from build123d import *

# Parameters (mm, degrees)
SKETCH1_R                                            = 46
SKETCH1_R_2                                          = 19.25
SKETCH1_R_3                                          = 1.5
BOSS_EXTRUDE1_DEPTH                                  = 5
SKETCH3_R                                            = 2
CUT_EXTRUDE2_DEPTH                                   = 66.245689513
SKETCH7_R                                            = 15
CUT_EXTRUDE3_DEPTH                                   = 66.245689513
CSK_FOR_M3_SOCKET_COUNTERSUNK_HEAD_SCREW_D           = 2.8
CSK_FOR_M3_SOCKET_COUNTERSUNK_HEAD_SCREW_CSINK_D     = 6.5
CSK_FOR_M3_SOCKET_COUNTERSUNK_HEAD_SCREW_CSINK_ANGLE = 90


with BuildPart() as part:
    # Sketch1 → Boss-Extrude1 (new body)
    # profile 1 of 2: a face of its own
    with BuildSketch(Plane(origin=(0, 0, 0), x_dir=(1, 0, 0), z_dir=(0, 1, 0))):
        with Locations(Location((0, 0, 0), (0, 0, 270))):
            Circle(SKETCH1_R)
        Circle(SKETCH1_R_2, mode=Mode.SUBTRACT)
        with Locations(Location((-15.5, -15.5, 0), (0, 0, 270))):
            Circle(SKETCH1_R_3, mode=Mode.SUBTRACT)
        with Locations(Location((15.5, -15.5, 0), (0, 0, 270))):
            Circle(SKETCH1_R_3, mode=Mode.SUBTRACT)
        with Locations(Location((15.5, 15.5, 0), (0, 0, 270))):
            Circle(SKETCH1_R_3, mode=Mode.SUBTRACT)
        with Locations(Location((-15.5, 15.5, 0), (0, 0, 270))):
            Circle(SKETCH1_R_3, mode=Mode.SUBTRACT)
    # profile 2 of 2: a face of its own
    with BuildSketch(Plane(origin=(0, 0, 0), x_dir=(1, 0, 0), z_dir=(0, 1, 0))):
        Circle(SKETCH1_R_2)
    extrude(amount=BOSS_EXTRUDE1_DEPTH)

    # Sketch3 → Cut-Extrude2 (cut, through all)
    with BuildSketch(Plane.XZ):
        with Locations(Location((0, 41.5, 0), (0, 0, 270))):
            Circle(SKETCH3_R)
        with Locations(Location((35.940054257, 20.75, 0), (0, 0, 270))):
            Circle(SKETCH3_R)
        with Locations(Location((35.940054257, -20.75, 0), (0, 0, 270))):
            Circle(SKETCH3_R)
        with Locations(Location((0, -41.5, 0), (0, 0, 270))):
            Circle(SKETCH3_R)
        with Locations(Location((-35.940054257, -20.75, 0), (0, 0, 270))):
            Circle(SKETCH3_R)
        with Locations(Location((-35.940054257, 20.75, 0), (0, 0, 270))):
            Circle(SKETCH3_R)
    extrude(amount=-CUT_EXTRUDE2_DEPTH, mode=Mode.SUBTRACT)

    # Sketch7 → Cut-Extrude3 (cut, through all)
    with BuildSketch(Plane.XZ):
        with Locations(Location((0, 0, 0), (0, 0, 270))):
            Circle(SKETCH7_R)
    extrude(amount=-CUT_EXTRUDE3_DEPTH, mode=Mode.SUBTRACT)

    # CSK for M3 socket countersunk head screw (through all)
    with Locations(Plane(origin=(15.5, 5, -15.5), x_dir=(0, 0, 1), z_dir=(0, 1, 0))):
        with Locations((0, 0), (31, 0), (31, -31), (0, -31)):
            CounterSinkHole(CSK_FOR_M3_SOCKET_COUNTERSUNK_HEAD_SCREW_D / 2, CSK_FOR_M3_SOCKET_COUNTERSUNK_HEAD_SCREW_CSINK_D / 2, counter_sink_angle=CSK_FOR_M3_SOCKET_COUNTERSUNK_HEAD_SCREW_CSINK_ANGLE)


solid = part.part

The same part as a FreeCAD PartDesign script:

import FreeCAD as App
import Part
import Sketcher
from FreeCAD import Vector
Q = App.Units.Quantity

doc = App.newDocument("Part")
params = doc.addObject("Spreadsheet::Sheet", "Params")
for row, (alias, value) in enumerate([
    ("sketch1_diameter", "92 mm"),
    ("sketch1_diameter2", "3 mm"),
    ("pad1_length", "5 mm"),
    ("sketch2_diameter", "4 mm"),
    ("sketch3_diameter", "30 mm"),
    ("sketch4_diameter", "2.8 mm"),
    ("hole_diameter", "2.8 mm"),
    ("hole_csink_diameter", "6.5 mm"),
], start=1):
    params.set(f"A{row}", alias)
    params.set(f"B{row}", "=" + value)
    params.setAlias(f"B{row}", alias)

body = doc.addObject("PartDesign::Body", "Body")

# Sketch on XZ plane
sketch1 = doc.addObject("Sketcher::SketchObject", "Sketch")
body.addObject(sketch1)
sketch1.AttachmentSupport = (doc.XZ_Plane, [""])
sketch1.MapMode = "FlatFace"
sketch1.addGeometry([
    Part.Circle(Vector(0, 0, 0), Vector(0, 0, 1), 46),  # 0
    Part.Circle(Vector(-15.5, -15.5, 0), Vector(0, 0, 1), 1.5),  # 1
    Part.Circle(Vector(-15.5, 15.5, 0), Vector(0, 0, 1), 1.5),  # 2
    Part.Circle(Vector(15.5, -15.5, 0), Vector(0, 0, 1), 1.5),  # 3
    Part.Circle(Vector(15.5, 15.5, 0), Vector(0, 0, 1), 1.5),  # 4
], False)
sketch1.addConstraint([
    Sketcher.Constraint("Coincident", 0, 3, -1, 1),
    Sketcher.Constraint("Equal", 1, 2),
    Sketcher.Constraint("Equal", 2, 3),
    Sketcher.Constraint("Equal", 3, 4),
    Sketcher.Constraint("Symmetric", 2, 3, 3, 3, -1, 1),
    Sketcher.Constraint("Symmetric", 1, 3, 4, 3, -1, 1),
    Sketcher.Constraint("Symmetric", 1, 3, 3, 3, -2),
    Sketcher.Constraint("Diameter", 0, Q("92 mm")),
    Sketcher.Constraint("Diameter", 1, Q("3 mm")),
    Sketcher.Constraint("DistanceY", 1, 3, 2, 3, Q("31 mm")),
    Sketcher.Constraint("DistanceX", 1, 3, 3, 3, Q("31 mm")),
])
sketch1.setExpression("Constraints[7]", "Params.sketch1_diameter")
sketch1.setExpression("Constraints[8]", "Params.sketch1_diameter2")
pad1 = doc.addObject("PartDesign::Pad", "Pad")
body.addObject(pad1)
pad1.Profile = sketch1
pad1.setExpression("Length", "Params.pad1_length")
pad1.Reversed = True

# Sketch on XZ plane
sketch2 = doc.addObject("Sketcher::SketchObject", "Sketch001")
body.addObject(sketch2)
sketch2.AttachmentSupport = (doc.XZ_Plane, [""])
sketch2.MapMode = "FlatFace"
sketch2.addGeometry([
    Part.Circle(Vector(0, 41.5, 0), Vector(0, 0, 1), 2),  # 0
    Part.Circle(Vector(35.9, 20.8, 0), Vector(0, 0, 1), 2),  # 1
    Part.Circle(Vector(35.9, -20.8, 0), Vector(0, 0, 1), 2),  # 2
    Part.Circle(Vector(0, -41.5, 0), Vector(0, 0, 1), 2),  # 3
    Part.Circle(Vector(-35.9, -20.8, 0), Vector(0, 0, 1), 2),  # 4
    Part.Circle(Vector(-35.9, 20.8, 0), Vector(0, 0, 1), 2),  # 5
], False)
sketch2.addConstraint([
    Sketcher.Constraint("Equal", 0, 1),
    Sketcher.Constraint("Equal", 1, 2),
    Sketcher.Constraint("Equal", 2, 3),
    Sketcher.Constraint("Equal", 3, 4),
    Sketcher.Constraint("Equal", 4, 5),
    Sketcher.Constraint("Symmetric", 0, 3, 3, 3, -1, 1),
    Sketcher.Constraint("Symmetric", 1, 3, 4, 3, -1, 1),
    Sketcher.Constraint("Symmetric", 2, 3, 5, 3, -1, 1),
    Sketcher.Constraint("Symmetric", 2, 3, 4, 3, -2),
    Sketcher.Constraint("PointOnObject", 0, 3, -2),
    Sketcher.Constraint("Diameter", 0, Q("4 mm")),
    Sketcher.Constraint("DistanceY", 3, 3, 0, 3, Q("83 mm")),
    Sketcher.Constraint("DistanceY", 2, 3, 1, 3, Q("41.5 mm")),
    Sketcher.Constraint("DistanceX", 4, 3, 2, 3, Q("71.880109 mm")),
])
sketch2.setExpression("Constraints[10]", "Params.sketch2_diameter")
pocket1 = doc.addObject("PartDesign::Pocket", "Pocket")
body.addObject(pocket1)
pocket1.Profile = sketch2
pocket1.Type = "ThroughAll"

# Sketch on XZ plane
sketch3 = doc.addObject("Sketcher::SketchObject", "Sketch002")
body.addObject(sketch3)
sketch3.AttachmentSupport = (doc.XZ_Plane, [""])
sketch3.MapMode = "FlatFace"
sketch3.addGeometry(Part.Circle(Vector(0, 0, 0), Vector(0, 0, 1), 15), False)
sketch3.addConstraint([
    Sketcher.Constraint("Coincident", 0, 3, -1, 1),
    Sketcher.Constraint("Diameter", 0, Q("30 mm")),
])
sketch3.setExpression("Constraints[1]", "Params.sketch3_diameter")
pocket2 = doc.addObject("PartDesign::Pocket", "Pocket001")
body.addObject(pocket2)
pocket2.Profile = sketch3
pocket2.Type = "ThroughAll"

# Sketch on XZ plane
sketch4 = doc.addObject("Sketcher::SketchObject", "Sketch003")
body.addObject(sketch4)
sketch4.AttachmentSupport = (doc.XZ_Plane, [""])
sketch4.MapMode = "FlatFace"
sketch4.AttachmentOffset = App.Placement(Vector(0, 0, -5), App.Rotation())
sketch4.addGeometry([
    Part.Circle(Vector(15.5, -15.5, 0), Vector(0, 0, 1), 1.4),
    Part.Circle(Vector(15.5, 15.5, 0), Vector(0, 0, 1), 1.4),
    Part.Circle(Vector(-15.5, 15.5, 0), Vector(0, 0, 1), 1.4),
    Part.Circle(Vector(-15.5, -15.5, 0), Vector(0, 0, 1), 1.4),
], False)
sketch4.addConstraint([
    Sketcher.Constraint("Equal", 0, 1),
    Sketcher.Constraint("Equal", 1, 2),
    Sketcher.Constraint("Equal", 2, 3),
    Sketcher.Constraint("Symmetric", 0, 3, 2, 3, -1, 1),
    Sketcher.Constraint("Symmetric", 1, 3, 3, 3, -1, 1),
    Sketcher.Constraint("Symmetric", 1, 3, 2, 3, -2),
    Sketcher.Constraint("Diameter", 0, Q("2.8 mm")),
    Sketcher.Constraint("DistanceY", 0, 3, 1, 3, Q("31 mm")),
    Sketcher.Constraint("DistanceX", 2, 3, 1, 3, Q("31 mm")),
])
sketch4.setExpression("Constraints[6]", "Params.sketch4_diameter")
doc.recompute()
hole = doc.addObject("PartDesign::Hole", "Hole")
body.addObject(hole)
hole.Profile = sketch4
hole.ThreadType = "None"
hole.setExpression("Diameter", "Params.hole_diameter")
hole.DepthType = "ThroughAll"
hole.HoleCutType = "Countersink"
hole.setExpression("HoleCutDiameter", "Params.hole_csink_diameter")
hole.HoleCutCountersinkAngle = 90
hole.Reversed = True

doc.recompute()
